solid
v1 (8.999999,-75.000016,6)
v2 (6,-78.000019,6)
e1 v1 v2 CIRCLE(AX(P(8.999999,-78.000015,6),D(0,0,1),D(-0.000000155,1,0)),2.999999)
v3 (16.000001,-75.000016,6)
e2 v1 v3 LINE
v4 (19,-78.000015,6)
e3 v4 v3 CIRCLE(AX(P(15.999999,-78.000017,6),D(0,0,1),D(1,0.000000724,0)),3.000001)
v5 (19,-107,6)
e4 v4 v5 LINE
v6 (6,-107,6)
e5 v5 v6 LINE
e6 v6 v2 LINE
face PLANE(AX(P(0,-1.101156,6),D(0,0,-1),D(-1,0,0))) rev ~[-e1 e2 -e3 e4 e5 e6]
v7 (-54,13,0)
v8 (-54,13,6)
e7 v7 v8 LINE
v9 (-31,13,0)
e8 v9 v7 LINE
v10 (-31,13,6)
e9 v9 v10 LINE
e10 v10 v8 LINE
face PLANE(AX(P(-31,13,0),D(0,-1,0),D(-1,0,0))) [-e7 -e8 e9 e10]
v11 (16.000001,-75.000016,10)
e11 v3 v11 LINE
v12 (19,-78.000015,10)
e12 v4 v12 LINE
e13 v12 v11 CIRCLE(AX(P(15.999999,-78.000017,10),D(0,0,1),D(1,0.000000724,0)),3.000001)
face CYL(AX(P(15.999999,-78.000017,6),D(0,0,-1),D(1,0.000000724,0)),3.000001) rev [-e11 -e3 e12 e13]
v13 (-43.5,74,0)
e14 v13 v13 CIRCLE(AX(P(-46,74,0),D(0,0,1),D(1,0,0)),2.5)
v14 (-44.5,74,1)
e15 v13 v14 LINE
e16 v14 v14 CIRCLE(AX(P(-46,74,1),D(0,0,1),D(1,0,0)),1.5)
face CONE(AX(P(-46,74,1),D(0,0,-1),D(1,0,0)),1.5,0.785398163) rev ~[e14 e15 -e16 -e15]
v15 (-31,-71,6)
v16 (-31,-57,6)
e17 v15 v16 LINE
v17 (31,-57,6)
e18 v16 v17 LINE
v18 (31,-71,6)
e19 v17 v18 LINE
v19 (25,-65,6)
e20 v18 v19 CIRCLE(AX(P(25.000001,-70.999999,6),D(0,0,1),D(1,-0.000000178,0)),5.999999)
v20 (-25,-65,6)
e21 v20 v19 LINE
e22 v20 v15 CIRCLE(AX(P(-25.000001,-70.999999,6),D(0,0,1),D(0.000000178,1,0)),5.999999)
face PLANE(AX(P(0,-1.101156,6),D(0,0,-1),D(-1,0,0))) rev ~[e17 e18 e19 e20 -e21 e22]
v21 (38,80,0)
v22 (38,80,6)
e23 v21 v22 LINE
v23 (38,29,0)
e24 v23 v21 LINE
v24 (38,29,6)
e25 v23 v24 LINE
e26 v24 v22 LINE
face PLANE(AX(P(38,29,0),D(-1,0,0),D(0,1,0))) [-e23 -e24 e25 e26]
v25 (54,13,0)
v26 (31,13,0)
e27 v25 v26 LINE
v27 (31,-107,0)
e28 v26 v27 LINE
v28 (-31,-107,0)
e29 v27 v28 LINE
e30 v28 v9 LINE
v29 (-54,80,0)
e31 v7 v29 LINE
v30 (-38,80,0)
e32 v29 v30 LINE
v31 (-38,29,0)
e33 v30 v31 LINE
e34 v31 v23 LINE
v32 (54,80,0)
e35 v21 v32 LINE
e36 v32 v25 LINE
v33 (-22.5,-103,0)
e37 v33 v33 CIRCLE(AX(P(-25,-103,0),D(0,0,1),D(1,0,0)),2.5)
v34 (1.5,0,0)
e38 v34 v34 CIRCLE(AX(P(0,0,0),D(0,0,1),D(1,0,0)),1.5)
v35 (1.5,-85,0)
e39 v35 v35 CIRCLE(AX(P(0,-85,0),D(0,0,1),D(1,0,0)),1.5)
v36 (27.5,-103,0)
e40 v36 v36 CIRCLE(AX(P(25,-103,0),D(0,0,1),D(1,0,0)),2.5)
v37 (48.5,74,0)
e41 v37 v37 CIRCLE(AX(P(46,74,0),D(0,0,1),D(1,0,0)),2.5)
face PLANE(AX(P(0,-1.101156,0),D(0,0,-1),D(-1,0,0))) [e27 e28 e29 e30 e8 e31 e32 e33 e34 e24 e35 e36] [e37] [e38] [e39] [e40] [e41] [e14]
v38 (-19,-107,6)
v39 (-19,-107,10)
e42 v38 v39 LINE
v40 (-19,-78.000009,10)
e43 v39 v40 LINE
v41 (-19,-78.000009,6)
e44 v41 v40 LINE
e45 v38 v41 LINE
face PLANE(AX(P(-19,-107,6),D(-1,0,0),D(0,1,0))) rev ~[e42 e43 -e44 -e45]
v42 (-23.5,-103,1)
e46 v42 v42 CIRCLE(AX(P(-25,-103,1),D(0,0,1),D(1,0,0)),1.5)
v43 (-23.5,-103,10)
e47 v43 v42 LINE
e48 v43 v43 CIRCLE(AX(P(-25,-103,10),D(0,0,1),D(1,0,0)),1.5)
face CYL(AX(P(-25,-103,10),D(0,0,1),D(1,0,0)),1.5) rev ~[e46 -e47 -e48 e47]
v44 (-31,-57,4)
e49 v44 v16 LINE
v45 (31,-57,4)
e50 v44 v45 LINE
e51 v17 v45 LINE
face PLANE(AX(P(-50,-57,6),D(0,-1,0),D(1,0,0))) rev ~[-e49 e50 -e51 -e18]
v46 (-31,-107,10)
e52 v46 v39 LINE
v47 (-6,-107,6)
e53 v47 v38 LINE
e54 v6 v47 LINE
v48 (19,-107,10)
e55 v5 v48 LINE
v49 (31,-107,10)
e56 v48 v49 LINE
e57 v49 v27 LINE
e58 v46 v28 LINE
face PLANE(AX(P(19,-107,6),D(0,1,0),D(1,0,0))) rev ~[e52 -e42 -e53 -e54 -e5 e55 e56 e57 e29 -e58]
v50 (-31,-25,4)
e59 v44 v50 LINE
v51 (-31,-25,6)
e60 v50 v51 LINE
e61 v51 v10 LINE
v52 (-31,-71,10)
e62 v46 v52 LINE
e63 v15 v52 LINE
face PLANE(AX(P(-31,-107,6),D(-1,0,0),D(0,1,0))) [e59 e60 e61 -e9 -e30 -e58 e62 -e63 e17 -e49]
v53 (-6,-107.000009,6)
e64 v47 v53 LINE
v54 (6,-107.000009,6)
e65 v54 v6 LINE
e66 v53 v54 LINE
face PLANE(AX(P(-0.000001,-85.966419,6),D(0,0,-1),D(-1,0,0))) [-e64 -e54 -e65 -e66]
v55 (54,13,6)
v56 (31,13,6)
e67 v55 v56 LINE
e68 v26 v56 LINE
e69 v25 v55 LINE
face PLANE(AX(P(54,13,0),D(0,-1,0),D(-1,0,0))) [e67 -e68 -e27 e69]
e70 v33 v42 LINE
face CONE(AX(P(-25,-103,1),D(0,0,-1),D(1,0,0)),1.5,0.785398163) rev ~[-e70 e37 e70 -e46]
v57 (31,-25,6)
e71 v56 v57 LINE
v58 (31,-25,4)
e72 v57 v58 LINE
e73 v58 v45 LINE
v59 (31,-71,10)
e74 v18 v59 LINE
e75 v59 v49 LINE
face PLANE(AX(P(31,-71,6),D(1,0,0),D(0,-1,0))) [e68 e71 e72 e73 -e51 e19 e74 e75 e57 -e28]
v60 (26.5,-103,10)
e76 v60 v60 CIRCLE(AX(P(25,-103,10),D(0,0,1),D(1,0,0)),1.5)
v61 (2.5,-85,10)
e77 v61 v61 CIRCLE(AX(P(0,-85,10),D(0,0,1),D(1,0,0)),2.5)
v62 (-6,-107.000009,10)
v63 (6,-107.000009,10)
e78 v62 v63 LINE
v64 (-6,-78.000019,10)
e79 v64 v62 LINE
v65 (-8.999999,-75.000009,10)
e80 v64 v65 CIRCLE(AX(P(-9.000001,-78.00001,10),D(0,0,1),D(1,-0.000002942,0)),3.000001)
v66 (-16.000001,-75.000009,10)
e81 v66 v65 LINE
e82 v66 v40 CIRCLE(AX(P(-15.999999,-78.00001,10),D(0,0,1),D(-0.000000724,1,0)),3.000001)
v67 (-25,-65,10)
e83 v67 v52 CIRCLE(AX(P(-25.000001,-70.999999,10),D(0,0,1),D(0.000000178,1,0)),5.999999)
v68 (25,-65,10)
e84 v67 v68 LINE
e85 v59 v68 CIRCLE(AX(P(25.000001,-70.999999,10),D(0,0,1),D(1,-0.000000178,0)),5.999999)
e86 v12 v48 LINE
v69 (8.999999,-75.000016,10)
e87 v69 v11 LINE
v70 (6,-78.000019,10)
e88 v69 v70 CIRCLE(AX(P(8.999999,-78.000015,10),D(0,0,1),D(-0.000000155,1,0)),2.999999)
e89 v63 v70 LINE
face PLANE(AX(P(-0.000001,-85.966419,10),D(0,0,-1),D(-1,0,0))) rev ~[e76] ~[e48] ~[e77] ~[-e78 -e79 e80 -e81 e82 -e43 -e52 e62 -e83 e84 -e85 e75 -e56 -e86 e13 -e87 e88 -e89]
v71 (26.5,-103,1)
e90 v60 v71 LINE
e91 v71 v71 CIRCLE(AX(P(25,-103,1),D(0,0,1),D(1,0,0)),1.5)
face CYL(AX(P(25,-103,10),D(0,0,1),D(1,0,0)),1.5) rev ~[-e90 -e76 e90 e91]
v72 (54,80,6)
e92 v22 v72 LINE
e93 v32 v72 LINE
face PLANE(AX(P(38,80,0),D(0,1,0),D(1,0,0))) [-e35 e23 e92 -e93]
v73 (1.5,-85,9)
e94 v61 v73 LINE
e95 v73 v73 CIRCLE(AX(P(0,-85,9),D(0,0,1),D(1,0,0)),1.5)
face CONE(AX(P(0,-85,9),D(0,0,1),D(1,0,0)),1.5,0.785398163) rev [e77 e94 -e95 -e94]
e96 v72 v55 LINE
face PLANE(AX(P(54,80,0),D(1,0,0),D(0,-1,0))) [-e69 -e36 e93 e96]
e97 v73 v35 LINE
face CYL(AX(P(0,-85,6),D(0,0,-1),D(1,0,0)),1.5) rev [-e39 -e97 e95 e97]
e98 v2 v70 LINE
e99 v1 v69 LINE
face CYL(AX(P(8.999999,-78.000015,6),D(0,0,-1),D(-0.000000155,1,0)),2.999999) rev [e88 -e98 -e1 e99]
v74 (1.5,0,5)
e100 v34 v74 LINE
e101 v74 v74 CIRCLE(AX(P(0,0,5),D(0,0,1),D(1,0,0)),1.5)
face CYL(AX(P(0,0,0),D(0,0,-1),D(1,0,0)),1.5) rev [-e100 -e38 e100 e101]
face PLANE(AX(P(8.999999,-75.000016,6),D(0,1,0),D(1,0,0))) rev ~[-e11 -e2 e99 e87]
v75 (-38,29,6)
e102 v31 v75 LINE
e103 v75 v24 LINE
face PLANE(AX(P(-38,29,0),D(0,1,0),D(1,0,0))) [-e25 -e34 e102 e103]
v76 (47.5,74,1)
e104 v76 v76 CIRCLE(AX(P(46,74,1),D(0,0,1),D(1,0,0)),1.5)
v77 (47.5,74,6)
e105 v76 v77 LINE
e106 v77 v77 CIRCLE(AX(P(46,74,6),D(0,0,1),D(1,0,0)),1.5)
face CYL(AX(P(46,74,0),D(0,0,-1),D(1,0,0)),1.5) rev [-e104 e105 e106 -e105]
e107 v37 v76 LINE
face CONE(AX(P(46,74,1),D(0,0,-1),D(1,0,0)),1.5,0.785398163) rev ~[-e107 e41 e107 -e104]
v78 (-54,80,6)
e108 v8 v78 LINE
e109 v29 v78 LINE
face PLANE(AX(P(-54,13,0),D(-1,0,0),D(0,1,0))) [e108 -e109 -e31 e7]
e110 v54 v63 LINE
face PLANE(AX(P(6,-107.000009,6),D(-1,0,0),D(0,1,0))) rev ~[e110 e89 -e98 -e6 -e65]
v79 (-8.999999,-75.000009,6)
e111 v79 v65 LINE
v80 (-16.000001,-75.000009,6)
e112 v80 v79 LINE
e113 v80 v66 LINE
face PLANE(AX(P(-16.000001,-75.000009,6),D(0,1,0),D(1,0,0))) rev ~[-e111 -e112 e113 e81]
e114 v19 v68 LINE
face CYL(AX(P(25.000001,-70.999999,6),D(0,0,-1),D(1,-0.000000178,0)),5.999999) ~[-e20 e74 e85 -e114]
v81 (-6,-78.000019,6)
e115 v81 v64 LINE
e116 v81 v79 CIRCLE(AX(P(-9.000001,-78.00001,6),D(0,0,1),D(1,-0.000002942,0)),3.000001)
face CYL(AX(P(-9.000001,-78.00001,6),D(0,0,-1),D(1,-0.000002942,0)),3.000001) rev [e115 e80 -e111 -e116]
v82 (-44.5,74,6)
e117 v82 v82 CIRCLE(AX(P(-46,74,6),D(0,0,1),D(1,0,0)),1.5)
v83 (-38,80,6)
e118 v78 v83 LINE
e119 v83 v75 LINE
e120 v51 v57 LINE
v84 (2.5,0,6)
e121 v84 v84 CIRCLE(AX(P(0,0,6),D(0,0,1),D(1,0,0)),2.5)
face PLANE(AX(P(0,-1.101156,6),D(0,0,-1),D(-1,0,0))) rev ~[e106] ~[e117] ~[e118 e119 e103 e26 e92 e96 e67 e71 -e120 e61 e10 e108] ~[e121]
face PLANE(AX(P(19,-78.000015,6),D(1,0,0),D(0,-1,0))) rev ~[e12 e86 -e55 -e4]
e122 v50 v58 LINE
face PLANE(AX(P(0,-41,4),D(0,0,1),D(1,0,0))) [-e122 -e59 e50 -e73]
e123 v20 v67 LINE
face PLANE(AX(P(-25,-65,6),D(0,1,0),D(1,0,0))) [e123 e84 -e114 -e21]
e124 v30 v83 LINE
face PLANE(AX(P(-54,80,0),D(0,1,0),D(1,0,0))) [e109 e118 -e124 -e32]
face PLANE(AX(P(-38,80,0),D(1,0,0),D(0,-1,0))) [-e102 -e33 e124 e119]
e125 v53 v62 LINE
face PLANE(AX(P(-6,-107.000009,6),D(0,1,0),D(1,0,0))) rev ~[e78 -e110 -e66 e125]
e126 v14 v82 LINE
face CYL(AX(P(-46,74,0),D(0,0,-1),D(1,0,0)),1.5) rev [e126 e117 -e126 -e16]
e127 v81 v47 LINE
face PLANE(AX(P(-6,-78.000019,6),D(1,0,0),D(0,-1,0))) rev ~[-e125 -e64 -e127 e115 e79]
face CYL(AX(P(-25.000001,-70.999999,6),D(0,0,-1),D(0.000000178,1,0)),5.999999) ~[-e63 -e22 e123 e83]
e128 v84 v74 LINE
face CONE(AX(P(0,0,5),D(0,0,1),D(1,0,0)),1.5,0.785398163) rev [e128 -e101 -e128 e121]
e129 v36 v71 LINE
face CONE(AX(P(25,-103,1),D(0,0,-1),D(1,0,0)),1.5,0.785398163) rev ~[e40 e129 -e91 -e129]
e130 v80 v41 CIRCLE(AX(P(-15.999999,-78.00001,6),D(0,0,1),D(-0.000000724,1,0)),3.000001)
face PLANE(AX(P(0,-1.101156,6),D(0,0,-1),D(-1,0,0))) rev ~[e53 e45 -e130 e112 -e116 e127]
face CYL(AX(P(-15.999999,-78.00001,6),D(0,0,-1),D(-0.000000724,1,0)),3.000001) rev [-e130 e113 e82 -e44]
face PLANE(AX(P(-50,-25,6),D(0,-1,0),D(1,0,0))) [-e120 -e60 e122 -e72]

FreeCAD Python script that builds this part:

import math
import FreeCAD as App
import Part
import Sketcher


def edges_at(feature, points):
    """Names of the edges that pass closest to the given points."""
    edges = feature.Shape.Edges
    near = lambda p: min(range(len(edges)), key=lambda i: edges[i].distToShape(Part.Vertex(*p))[0])
    return sorted({f"Edge{near(p) + 1}" for p in points})


def add_polygon(sketch, points):
    """Adds a closed chain of lines whose ends are joined by coincident constraints."""
    first, n = sketch.GeometryCount, len(points)
    for a, b in zip(points, points[1:] + points[:1]):
        sketch.addGeometry(Part.LineSegment(App.Vector(*a, 0), App.Vector(*b, 0)), False)
    for i in range(n):
        sketch.addConstraint(Sketcher.Constraint("Coincident", first + i, 2, first + (i + 1) % n, 1))

doc = App.newDocument("Part")
body = doc.addObject("PartDesign::Body", "Body")

sketch1 = body.newObject("Sketcher::SketchObject", "Sketch")
sketch1.AttachmentSupport = (doc.getObject("XY_Plane"), [""])
sketch1.MapMode = "FlatFace"
add_polygon(sketch1, [(38, 29), (-38, 29), (-38, 80), (-54, 80), (-54, 13), (-31, 13), (-31, -107), (31, -107), (31, 13), (54, 13), (54, 80), (38, 80)])
sketch1.addGeometry(Part.Circle(App.Vector(0, -85, 0), App.Vector(0, 0, 1), 1.5), False)
sketch1.addGeometry(Part.Circle(App.Vector(46, 74, 0), App.Vector(0, 0, 1), 1.5), False)
sketch1.addGeometry(Part.Circle(App.Vector(0, 0, 0), App.Vector(0, 0, 1), 1.5), False)
sketch1.addGeometry(Part.Circle(App.Vector(-46, 74, 0), App.Vector(0, 0, 1), 1.5), False)
sketch1.addConstraint([
    Sketcher.Constraint("Horizontal", 0),
    Sketcher.Constraint("Vertical", 1),
    Sketcher.Constraint("Horizontal", 2),
    Sketcher.Constraint("Vertical", 3),
    Sketcher.Constraint("Horizontal", 4),
    Sketcher.Constraint("Vertical", 5),
    Sketcher.Constraint("Horizontal", 6),
    Sketcher.Constraint("Vertical", 7),
    Sketcher.Constraint("Horizontal", 8),
    Sketcher.Constraint("Vertical", 9),
    Sketcher.Constraint("Horizontal", 10),
    Sketcher.Constraint("Vertical", 11),
    Sketcher.Constraint("Coincident", 14, 3, -1, 1),
    Sketcher.Constraint("Equal", 12, 13),
    Sketcher.Constraint("Equal", 13, 14),
    Sketcher.Constraint("Equal", 14, 15),
    Sketcher.Constraint("Symmetric", 13, 3, 15, 3, -2),
    Sketcher.Constraint("Symmetric", 4, 2, 7, 2, -2),
    Sketcher.Constraint("Symmetric", 2, 2, 9, 2, -2),
    Sketcher.Constraint("PointOnObject", 12, 3, -2),
    Sketcher.Constraint("Equal", 2, 10),
    Sketcher.Constraint("Diameter", 12, 3.0),
    Sketcher.Constraint("DistanceX", 0, 2, 0, 1, 76.0),
    Sketcher.Constraint("DistanceX", 2, 2, 2, 1, 16.0),
    Sketcher.Constraint("DistanceX", 4, 1, 4, 2, 23.0),
    Sketcher.Constraint("DistanceY", 1, 1, 1, 2, 51.0),
    Sketcher.Constraint("DistanceY", 3, 2, 3, 1, 67.0),
    Sketcher.Constraint("DistanceY", 5, 2, 5, 1, 120.0),
    Sketcher.Constraint("DistanceY", 12, 3, -1, 1, 85.0),
    Sketcher.Constraint("DistanceX", -1, 1, 13, 3, 46.0),
    Sketcher.Constraint("DistanceY", -1, 1, 13, 3, 74.0),
    Sketcher.Constraint("DistanceY", -1, 1, 0, 2, 29.0),
])
pad1 = body.newObject("PartDesign::Pad", "Pad")
pad1.Profile = sketch1
pad1.Length = 6

sketch2 = body.newObject("Sketcher::SketchObject", "Sketch001")
sketch2.AttachmentSupport = (doc.getObject("XY_Plane"), [""])
sketch2.MapMode = "FlatFace"
sketch2.AttachmentOffset = App.Placement(App.Vector(0, 0, 6), App.Rotation())
sketch2.addGeometry([
    Part.LineSegment(App.Vector(31, -107, 0), App.Vector(31, -71, 0)),
    Part.ArcOfCircle(Part.Circle(App.Vector(25, -71, 0), App.Vector(0, 0, 1), 6), math.radians(0), math.radians(90)),
    Part.LineSegment(App.Vector(25, -65, 0), App.Vector(-25, -65, 0)),
    Part.ArcOfCircle(Part.Circle(App.Vector(-25, -71, 0), App.Vector(0, 0, 1), 6), math.radians(90), math.radians(180)),
    Part.LineSegment(App.Vector(-31, -71, 0), App.Vector(-31, -107, 0)),
    Part.LineSegment(App.Vector(-31, -107, 0), App.Vector(-19, -107, 0)),
    Part.LineSegment(App.Vector(-19, -107, 0), App.Vector(-19, -78, 0)),
    Part.ArcOfCircle(Part.Circle(App.Vector(-16, -78, 0), App.Vector(0, 0, 1), 3), math.radians(90), math.radians(180)),
    Part.LineSegment(App.Vector(-16, -75, 0), App.Vector(-9, -75, 0)),
    Part.ArcOfCircle(Part.Circle(App.Vector(-9, -78, 0), App.Vector(0, 0, 1), 3), math.radians(0), math.radians(90)),
    Part.LineSegment(App.Vector(-6, -78, 0), App.Vector(-6, -107, 0)),
    Part.LineSegment(App.Vector(-6, -107, 0), App.Vector(6, -107, 0)),
    Part.LineSegment(App.Vector(6, -107, 0), App.Vector(6, -78, 0)),
    Part.ArcOfCircle(Part.Circle(App.Vector(9, -78, 0), App.Vector(0, 0, 1), 3), math.radians(90), math.radians(180)),
    Part.LineSegment(App.Vector(9, -75, 0), App.Vector(16, -75, 0)),
    Part.ArcOfCircle(Part.Circle(App.Vector(16, -78, 0), App.Vector(0, 0, 1), 3), math.radians(0), math.radians(90)),
    Part.LineSegment(App.Vector(19, -78, 0), App.Vector(19, -107, 0)),
    Part.LineSegment(App.Vector(19, -107, 0), App.Vector(31, -107, 0)),
    Part.Circle(App.Vector(0, -85, 0), App.Vector(0, 0, 1), 1.5),
], False)
sketch2.addConstraint([
    Sketcher.Constraint("Tangent", 0, 2, 1, 1),
    Sketcher.Constraint("Tangent", 1, 2, 2, 1),
    Sketcher.Constraint("Tangent", 2, 2, 3, 1),
    Sketcher.Constraint("Tangent", 3, 2, 4, 1),
    Sketcher.Constraint("Coincident", 4, 2, 5, 1),
    Sketcher.Constraint("Coincident", 5, 2, 6, 1),
    Sketcher.Constraint("Tangent", 6, 2, 7, 2),
    Sketcher.Constraint("Tangent", 7, 1, 8, 1),
    Sketcher.Constraint("Tangent", 8, 2, 9, 2),
    Sketcher.Constraint("Coincident", 9, 1, 10, 1),
    Sketcher.Constraint("Coincident", 10, 2, 11, 1),
    Sketcher.Constraint("Coincident", 11, 2, 12, 1),
    Sketcher.Constraint("Tangent", 12, 2, 13, 2),
    Sketcher.Constraint("Tangent", 13, 1, 14, 1),
    Sketcher.Constraint("Tangent", 14, 2, 15, 2),
    Sketcher.Constraint("Tangent", 15, 1, 16, 1),
    Sketcher.Constraint("Coincident", 16, 2, 17, 1),
    Sketcher.Constraint("Coincident", 17, 2, 0, 1),
    Sketcher.Constraint("Vertical", 0),
    Sketcher.Constraint("Horizontal", 2),
    Sketcher.Constraint("Vertical", 4),
    Sketcher.Constraint("Horizontal", 5),
    Sketcher.Constraint("Vertical", 6),
    Sketcher.Constraint("Horizontal", 8),
    Sketcher.Constraint("Vertical", 10),
    Sketcher.Constraint("Horizontal", 11),
    Sketcher.Constraint("Vertical", 12),
    Sketcher.Constraint("Horizontal", 14),
    Sketcher.Constraint("Vertical", 16),
    Sketcher.Constraint("Horizontal", 17),
    Sketcher.Constraint("Equal", 1, 3),
    Sketcher.Constraint("Equal", 7, 9),
    Sketcher.Constraint("Equal", 9, 13),
    Sketcher.Constraint("Equal", 13, 15),
    Sketcher.Constraint("Symmetric", 9, 3, 13, 3, -2),
    Sketcher.Constraint("Symmetric", 5, 2, 16, 2, -2),
    Sketcher.Constraint("PointOnObject", 18, 3, -2),
    Sketcher.Constraint("Horizontal", 15, 3, 9, 1),
    Sketcher.Constraint("Equal", 5, 11),
    Sketcher.Constraint("Equal", 11, 17),
    Sketcher.Constraint("Equal", 6, 10),
    Sketcher.Constraint("Diameter", 18, 3.0),
    Sketcher.Constraint("Radius", 1, 5.999999),
    Sketcher.Constraint("Radius", 7, 3.000001),
    Sketcher.Constraint("DistanceX", 2, 2, 2, 1, 50.0),
    Sketcher.Constraint("DistanceX", 5, 1, 5, 2, 12.0),
    Sketcher.Constraint("DistanceY", 0, 1, 0, 2, 36.0),
    Sketcher.Constraint("DistanceY", 1, 3, -1, 1, 70.999999),
    Sketcher.Constraint("DistanceY", 18, 3, -1, 1, 85.0),
    Sketcher.Constraint("DistanceY", 10, 2, 9, 3, 28.999999),
])
pad2 = body.newObject("PartDesign::Pad", "Pad001")
pad2.Profile = sketch2
pad2.Length = 4

sketch3 = body.newObject("Sketcher::SketchObject", "Sketch002")
sketch3.AttachmentSupport = (doc.getObject("XY_Plane"), [""])
sketch3.MapMode = "FlatFace"
sketch3.AttachmentOffset = App.Placement(App.Vector(0, 0, 10), App.Rotation())
sketch3.addGeometry([
    Part.Circle(App.Vector(-25, -103, 0), App.Vector(0, 0, 1), 1.5),
    Part.Circle(App.Vector(25, -103, 0), App.Vector(0, 0, 1), 1.5),
], False)
sketch3.addConstraint([
    Sketcher.Constraint("Equal", 0, 1),
    Sketcher.Constraint("Symmetric", 0, 3, 1, 3, -2),
    Sketcher.Constraint("Diameter", 0, 3.0),
    Sketcher.Constraint("DistanceX", 0, 3, -1, 1, 25.0),
    Sketcher.Constraint("DistanceY", 0, 3, -1, 1, 103.0),
])
pocket1 = body.newObject("PartDesign::Pocket", "Pocket")
pocket1.Profile = sketch3
pocket1.Length = 10
doc.recompute()

chamfer = body.newObject("PartDesign::Chamfer", "Chamfer")
chamfer.Base = (pocket1, edges_at(pocket1, [
    (23.5, -103, 0),
    (-26.5, -103, 0),
    (-47.5, 74, 0),
    (44.5, 74, 0),
    (-1.5, -85, 10),
    (-1.5, 0, 6),
]))
chamfer.Size = 1

sketch4 = body.newObject("Sketcher::SketchObject", "Sketch003")
sketch4.AttachmentSupport = (doc.getObject("XY_Plane"), [""])
sketch4.MapMode = "FlatFace"
sketch4.AttachmentOffset = App.Placement(App.Vector(0, 0, 6), App.Rotation())
add_polygon(sketch4, [(-50, -25), (-50, -57), (50, -57), (50, -25)])
sketch4.addConstraint([
    Sketcher.Constraint("Vertical", 0),
    Sketcher.Constraint("Horizontal", 1),
    Sketcher.Constraint("Vertical", 2),
    Sketcher.Constraint("Horizontal", 3),
    Sketcher.Constraint("DistanceX", 1, 1, 1, 2, 100.0),
    Sketcher.Constraint("DistanceY", 0, 2, 0, 1, 32.0),
    Sketcher.Constraint("DistanceX", 0, 2, -1, 1, 50.0),
    Sketcher.Constraint("DistanceY", 0, 2, -1, 1, 57.0),
])
pocket2 = body.newObject("PartDesign::Pocket", "Pocket001")
pocket2.Profile = sketch4
pocket2.Length = 2

doc.recompute()
